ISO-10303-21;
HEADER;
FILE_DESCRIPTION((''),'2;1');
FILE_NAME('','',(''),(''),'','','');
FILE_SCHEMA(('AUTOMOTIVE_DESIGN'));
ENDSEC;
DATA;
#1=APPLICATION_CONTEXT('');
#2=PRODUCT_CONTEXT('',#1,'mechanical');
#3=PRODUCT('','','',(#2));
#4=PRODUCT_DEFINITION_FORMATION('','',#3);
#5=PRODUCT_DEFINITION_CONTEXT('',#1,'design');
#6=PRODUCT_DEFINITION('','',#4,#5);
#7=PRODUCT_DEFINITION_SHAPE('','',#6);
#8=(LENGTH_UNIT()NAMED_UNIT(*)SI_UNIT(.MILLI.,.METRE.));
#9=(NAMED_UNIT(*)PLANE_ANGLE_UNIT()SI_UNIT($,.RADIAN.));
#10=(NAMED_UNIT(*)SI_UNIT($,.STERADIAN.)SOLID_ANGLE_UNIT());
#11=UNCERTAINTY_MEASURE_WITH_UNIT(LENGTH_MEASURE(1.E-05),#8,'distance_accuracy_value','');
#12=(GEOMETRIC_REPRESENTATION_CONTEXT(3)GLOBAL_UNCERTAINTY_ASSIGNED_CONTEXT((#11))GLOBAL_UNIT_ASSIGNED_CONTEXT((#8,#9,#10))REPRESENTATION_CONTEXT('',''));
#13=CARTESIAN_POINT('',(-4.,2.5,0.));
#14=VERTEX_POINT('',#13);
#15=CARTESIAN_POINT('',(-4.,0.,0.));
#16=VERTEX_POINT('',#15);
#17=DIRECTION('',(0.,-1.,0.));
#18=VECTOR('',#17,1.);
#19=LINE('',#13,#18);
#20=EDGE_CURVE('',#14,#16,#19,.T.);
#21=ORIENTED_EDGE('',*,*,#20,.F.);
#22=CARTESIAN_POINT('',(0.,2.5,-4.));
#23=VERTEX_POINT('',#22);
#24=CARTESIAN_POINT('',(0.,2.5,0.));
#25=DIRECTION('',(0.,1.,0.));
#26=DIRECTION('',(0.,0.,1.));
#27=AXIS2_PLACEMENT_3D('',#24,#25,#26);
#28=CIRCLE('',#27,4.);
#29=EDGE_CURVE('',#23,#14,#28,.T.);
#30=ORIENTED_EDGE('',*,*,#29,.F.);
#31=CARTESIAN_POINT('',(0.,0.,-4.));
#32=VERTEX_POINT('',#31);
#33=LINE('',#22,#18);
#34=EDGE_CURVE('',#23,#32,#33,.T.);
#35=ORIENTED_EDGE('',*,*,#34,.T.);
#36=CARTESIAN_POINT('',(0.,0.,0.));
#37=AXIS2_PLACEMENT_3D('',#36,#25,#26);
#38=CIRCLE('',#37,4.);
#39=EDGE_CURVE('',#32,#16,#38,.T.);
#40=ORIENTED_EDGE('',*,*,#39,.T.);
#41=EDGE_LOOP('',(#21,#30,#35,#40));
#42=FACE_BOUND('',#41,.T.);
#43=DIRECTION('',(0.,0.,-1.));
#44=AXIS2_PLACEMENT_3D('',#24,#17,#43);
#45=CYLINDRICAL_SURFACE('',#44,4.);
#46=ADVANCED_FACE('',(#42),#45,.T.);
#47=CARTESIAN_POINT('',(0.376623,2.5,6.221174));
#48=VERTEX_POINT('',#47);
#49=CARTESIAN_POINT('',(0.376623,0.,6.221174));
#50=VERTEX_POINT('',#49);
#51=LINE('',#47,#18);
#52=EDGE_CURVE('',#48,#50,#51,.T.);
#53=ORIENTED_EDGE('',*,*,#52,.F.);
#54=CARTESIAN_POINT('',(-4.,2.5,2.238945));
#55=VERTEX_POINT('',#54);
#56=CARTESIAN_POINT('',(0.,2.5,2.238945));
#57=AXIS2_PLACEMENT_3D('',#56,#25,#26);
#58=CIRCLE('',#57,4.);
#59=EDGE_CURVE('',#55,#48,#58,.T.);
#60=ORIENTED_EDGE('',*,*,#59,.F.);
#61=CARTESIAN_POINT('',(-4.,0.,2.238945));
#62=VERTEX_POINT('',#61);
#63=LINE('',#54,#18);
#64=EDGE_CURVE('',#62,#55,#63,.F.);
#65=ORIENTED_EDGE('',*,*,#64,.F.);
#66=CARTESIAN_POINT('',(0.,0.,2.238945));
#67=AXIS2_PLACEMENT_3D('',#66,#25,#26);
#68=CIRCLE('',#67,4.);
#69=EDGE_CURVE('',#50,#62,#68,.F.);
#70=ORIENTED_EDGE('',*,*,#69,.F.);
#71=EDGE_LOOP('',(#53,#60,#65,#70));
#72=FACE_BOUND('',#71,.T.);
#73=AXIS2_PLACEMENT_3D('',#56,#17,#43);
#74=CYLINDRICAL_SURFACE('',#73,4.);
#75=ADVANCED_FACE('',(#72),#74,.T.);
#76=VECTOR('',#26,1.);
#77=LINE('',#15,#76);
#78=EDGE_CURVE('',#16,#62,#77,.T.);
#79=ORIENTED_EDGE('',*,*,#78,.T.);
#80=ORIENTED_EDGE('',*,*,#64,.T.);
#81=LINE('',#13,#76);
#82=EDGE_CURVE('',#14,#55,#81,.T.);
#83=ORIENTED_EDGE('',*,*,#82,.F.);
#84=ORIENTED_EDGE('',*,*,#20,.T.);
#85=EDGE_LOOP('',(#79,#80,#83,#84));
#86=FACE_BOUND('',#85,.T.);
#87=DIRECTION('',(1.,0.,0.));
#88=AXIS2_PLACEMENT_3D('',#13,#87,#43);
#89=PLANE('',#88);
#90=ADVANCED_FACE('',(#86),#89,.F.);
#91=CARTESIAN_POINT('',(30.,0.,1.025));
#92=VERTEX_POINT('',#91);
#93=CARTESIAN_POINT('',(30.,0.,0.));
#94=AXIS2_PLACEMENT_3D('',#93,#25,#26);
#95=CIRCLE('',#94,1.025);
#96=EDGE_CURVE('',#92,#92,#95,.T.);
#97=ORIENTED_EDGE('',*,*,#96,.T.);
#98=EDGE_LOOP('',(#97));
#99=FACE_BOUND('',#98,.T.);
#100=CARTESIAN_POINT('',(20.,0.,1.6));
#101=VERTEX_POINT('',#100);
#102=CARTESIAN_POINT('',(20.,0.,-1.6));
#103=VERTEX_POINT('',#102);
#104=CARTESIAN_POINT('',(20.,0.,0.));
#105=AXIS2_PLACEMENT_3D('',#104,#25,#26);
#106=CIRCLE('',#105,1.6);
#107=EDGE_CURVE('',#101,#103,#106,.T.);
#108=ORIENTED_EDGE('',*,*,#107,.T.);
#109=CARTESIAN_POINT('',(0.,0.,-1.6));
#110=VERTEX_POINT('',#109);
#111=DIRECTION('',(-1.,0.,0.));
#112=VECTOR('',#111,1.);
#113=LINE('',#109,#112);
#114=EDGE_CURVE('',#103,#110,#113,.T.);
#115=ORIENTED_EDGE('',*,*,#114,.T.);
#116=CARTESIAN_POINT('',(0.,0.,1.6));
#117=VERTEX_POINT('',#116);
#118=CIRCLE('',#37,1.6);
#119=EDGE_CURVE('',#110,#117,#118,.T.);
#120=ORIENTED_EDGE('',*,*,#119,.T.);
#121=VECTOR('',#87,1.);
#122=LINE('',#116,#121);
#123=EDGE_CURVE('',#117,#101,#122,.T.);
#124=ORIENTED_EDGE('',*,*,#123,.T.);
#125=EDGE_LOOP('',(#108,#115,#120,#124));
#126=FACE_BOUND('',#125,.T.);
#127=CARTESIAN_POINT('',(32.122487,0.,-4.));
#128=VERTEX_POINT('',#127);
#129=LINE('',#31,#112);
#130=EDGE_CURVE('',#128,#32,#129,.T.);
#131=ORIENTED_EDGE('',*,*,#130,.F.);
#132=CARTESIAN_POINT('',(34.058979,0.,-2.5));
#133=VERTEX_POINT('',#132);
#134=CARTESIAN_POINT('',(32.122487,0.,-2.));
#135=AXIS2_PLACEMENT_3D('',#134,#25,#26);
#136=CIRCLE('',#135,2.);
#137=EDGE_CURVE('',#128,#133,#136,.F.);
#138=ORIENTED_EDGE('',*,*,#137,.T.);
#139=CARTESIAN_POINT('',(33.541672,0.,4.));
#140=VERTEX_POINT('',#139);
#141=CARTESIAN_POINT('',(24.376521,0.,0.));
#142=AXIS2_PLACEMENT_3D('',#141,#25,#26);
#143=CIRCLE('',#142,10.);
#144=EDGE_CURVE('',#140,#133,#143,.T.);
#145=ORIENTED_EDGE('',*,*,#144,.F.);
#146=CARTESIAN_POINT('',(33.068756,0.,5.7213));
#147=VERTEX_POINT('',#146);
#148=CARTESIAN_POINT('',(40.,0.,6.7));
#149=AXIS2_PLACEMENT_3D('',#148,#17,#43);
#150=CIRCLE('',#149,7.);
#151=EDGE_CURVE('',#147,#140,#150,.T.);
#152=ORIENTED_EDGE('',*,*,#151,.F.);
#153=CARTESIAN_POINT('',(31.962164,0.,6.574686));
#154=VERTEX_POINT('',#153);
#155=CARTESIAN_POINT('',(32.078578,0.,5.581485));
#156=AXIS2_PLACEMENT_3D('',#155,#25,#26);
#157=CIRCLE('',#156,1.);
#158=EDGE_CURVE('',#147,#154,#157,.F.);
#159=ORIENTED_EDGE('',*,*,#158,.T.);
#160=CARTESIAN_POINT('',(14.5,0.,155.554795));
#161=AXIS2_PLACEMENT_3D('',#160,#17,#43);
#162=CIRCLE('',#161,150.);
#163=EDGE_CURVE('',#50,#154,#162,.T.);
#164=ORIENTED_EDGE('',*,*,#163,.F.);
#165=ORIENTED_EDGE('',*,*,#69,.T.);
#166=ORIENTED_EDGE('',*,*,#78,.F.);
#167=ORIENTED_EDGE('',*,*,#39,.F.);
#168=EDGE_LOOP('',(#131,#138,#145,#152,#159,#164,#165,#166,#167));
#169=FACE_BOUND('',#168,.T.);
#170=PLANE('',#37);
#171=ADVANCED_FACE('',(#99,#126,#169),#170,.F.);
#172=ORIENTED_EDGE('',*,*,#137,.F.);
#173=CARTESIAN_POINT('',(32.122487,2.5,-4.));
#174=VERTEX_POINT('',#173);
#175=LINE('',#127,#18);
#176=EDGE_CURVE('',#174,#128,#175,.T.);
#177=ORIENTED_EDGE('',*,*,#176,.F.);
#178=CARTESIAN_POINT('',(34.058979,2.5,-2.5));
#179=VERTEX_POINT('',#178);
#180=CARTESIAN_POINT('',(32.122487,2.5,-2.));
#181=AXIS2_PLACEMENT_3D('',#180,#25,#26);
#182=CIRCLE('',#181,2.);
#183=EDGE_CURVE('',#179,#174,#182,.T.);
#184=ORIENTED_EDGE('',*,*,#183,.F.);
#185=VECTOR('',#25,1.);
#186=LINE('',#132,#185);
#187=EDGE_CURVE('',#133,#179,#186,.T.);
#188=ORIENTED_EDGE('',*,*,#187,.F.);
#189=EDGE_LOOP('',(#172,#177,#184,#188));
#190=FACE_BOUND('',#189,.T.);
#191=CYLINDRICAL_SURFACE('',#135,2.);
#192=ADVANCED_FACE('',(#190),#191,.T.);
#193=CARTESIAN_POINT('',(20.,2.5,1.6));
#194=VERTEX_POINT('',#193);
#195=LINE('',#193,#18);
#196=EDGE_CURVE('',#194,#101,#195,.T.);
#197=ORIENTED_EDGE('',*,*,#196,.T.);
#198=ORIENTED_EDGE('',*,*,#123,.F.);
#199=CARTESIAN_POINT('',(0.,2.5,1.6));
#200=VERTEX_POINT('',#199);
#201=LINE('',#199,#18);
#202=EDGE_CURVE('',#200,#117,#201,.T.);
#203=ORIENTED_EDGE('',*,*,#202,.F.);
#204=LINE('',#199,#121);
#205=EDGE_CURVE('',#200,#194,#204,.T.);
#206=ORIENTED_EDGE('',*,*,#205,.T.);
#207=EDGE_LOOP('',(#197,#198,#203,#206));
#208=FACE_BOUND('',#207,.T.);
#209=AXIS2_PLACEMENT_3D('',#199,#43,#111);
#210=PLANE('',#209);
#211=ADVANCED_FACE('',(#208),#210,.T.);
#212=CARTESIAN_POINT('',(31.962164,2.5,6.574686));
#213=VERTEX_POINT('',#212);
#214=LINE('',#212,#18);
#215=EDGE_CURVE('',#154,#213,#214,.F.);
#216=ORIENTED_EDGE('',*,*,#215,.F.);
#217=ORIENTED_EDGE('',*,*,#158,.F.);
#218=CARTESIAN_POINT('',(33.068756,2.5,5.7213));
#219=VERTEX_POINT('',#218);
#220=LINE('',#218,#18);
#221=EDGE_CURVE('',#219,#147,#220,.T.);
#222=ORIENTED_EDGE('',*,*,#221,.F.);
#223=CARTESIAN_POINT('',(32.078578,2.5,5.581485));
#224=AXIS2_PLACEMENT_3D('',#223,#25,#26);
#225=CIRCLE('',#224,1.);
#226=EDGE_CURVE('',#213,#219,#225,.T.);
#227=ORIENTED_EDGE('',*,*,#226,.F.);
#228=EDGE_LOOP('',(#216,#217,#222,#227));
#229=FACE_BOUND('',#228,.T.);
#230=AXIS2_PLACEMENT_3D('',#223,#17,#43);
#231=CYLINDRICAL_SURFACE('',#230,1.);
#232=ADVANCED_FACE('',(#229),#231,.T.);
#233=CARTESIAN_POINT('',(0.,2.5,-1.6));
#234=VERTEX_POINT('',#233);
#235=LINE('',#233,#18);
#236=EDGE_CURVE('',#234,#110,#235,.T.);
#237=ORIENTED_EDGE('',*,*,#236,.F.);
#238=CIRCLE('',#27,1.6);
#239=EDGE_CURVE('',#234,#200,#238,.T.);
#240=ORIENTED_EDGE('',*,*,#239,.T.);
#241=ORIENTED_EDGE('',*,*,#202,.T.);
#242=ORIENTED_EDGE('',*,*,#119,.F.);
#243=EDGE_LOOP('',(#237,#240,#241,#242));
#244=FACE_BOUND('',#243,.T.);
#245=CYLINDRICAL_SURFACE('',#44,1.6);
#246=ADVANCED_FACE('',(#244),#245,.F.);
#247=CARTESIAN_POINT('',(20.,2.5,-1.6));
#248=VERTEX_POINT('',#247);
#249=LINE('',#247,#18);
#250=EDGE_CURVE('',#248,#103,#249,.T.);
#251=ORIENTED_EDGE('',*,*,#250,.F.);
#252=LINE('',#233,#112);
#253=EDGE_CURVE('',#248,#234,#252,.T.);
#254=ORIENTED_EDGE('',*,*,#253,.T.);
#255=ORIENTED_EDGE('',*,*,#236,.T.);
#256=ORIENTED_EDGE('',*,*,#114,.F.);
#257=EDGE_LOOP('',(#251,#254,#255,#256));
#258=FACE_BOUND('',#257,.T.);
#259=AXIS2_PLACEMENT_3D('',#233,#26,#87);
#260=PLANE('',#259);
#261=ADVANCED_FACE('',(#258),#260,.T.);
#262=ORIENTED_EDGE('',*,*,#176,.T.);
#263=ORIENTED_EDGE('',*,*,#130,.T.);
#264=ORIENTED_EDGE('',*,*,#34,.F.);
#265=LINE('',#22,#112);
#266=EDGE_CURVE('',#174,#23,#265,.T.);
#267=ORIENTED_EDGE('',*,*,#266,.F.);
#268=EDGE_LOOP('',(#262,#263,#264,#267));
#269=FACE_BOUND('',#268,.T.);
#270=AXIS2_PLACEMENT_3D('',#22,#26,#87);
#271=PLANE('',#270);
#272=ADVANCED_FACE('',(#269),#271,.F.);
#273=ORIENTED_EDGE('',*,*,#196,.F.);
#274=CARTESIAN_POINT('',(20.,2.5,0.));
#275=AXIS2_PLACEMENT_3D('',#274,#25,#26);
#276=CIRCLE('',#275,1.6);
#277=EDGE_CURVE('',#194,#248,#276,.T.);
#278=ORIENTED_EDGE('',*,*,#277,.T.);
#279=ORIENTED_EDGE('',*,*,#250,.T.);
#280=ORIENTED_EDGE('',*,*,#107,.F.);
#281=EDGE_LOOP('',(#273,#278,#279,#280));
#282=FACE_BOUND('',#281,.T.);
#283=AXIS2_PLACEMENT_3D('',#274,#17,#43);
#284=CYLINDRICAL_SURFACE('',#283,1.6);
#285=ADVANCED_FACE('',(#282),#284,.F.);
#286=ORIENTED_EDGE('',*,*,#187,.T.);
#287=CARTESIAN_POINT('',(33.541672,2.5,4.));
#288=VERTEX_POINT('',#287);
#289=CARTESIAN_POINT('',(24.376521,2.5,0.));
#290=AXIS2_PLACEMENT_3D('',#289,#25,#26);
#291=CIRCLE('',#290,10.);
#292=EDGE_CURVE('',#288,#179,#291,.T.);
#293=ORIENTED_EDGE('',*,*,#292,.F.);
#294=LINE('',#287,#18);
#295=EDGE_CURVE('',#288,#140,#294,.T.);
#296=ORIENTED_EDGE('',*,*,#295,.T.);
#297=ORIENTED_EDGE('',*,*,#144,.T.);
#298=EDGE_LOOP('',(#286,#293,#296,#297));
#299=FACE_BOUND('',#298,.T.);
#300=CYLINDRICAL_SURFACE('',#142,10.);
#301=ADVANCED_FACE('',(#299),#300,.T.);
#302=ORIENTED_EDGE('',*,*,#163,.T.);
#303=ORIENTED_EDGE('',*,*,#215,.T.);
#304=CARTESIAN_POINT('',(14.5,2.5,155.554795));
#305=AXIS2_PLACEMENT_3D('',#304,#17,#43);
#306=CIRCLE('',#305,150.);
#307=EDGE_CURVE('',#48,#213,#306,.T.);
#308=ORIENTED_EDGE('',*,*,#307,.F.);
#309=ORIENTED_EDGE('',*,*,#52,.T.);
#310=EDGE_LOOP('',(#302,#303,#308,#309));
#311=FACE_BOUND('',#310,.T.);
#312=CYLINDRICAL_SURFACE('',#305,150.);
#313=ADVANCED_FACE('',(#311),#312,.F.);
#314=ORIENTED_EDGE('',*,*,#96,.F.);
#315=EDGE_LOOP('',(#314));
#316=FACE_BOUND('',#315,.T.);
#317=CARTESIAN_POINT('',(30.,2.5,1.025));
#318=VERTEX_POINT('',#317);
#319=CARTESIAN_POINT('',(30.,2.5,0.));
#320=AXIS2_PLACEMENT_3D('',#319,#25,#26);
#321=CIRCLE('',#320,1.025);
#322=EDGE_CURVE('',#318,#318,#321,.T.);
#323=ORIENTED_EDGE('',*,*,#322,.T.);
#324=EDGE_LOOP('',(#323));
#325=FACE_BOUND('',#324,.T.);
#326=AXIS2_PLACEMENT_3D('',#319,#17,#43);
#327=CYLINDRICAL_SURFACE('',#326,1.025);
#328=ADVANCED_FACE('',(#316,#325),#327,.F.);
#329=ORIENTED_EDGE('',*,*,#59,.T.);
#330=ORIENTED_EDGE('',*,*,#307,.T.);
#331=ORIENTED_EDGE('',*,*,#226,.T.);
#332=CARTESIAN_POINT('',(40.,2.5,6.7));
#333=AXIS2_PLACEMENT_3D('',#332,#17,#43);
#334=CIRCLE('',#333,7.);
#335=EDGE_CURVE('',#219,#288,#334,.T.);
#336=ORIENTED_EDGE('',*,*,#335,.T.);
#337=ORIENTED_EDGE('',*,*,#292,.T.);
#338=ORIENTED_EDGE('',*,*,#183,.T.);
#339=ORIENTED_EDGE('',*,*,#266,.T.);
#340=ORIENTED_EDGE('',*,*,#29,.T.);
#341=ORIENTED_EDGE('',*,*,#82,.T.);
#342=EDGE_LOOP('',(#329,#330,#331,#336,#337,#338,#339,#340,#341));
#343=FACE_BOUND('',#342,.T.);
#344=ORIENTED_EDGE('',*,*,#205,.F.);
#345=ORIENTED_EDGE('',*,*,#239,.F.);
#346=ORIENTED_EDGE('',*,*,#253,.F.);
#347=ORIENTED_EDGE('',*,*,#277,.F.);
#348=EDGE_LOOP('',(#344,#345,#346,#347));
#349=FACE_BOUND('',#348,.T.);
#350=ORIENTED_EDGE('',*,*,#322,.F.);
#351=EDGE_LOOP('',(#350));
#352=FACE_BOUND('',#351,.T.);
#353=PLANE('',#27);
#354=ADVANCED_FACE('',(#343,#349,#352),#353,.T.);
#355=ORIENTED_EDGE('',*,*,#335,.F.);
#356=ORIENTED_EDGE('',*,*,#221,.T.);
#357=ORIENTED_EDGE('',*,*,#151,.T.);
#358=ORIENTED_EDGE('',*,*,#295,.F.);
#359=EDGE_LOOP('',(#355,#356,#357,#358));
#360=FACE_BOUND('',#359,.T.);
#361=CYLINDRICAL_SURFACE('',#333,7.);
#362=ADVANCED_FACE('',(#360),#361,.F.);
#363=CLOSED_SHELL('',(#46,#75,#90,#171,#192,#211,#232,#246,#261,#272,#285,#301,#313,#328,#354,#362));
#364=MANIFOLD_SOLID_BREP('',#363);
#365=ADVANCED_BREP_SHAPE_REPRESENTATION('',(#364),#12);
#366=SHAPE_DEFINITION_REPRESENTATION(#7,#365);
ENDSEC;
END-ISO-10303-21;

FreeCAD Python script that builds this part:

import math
import FreeCAD as App
import Part
import Sketcher
from FreeCAD import Vector
Q = App.Units.Quantity


def edges_at(feature, points):
    """Names of the edges that pass closest to the given points."""
    edges = feature.Shape.Edges
    near = lambda p: min(range(len(edges)), key=lambda i: edges[i].distToShape(Part.Vertex(*p))[0])
    return sorted({f"Edge{near(p) + 1}" for p in points})

doc = App.newDocument("Part")
body = doc.addObject("PartDesign::Body", "Body")

# Sketch on XZ plane
sketch1 = body.newObject("Sketcher::SketchObject", "Sketch")
sketch1.AttachmentSupport = (doc.getObject("XZ_Plane"), [""])
sketch1.MapMode = "FlatFace"
sketch1.addGeometry(Part.LineSegment(Vector(30, -4, 0), Vector(0, -4, 0)), False)
sketch1.addGeometry(Part.ArcOfCircle(Part.Circle(Vector(0, 0, 0), Vector(0, 0, 1), 4), math.radians(90), math.radians(270)), False)
sketch1.addGeometry(Part.LineSegment(Vector(0, 4, 0), Vector(30, 4, 0)), False)
sketch1.addGeometry(Part.ArcOfCircle(Part.Circle(Vector(30, 0, 0), Vector(0, 0, 1), 4), math.radians(-90), math.radians(90)), False)
sketch1.addGeometry(Part.Circle(Vector(30, 0, 0), Vector(0, 0, 1), 1), False)
sketch1.addGeometry(Part.LineSegment(Vector(0, -1.6, 0), Vector(20, -1.6, 0)), False)
sketch1.addGeometry(Part.ArcOfCircle(Part.Circle(Vector(20, 0, 0), Vector(0, 0, 1), 1.6), math.radians(-90), math.radians(90)), False)
sketch1.addGeometry(Part.LineSegment(Vector(20, 1.6, 0), Vector(0, 1.6, 0)), False)
sketch1.addGeometry(Part.ArcOfCircle(Part.Circle(Vector(0, 0, 0), Vector(0, 0, 1), 1.6), math.radians(90), math.radians(270)), False)
sketch1.addConstraint(Sketcher.Constraint("Tangent", 0, 2, 1, 2))
sketch1.addConstraint(Sketcher.Constraint("Tangent", 1, 1, 2, 1))
sketch1.addConstraint(Sketcher.Constraint("Tangent", 2, 2, 3, 2))
sketch1.addConstraint(Sketcher.Constraint("Tangent", 3, 1, 0, 1))
sketch1.addConstraint(Sketcher.Constraint("Tangent", 5, 2, 6, 1))
sketch1.addConstraint(Sketcher.Constraint("Tangent", 6, 2, 7, 1))
sketch1.addConstraint(Sketcher.Constraint("Tangent", 7, 2, 8, 1))
sketch1.addConstraint(Sketcher.Constraint("Tangent", 8, 2, 5, 1))
sketch1.addConstraint(Sketcher.Constraint("Horizontal", 0))
sketch1.addConstraint(Sketcher.Constraint("Horizontal", 2))
sketch1.addConstraint(Sketcher.Constraint("Horizontal", 5))
sketch1.addConstraint(Sketcher.Constraint("Horizontal", 7))
sketch1.addConstraint(Sketcher.Constraint("Coincident", 1, 3, -1, 1))
sketch1.addConstraint(Sketcher.Constraint("Coincident", 8, 3, -1, 1))
sketch1.addConstraint(Sketcher.Constraint("Coincident", 4, 3, 3, 3))
sketch1.addConstraint(Sketcher.Constraint("Radius", 1, Q("4 mm")))
sketch1.addConstraint(Sketcher.Constraint("Radius", 6, Q("1.6 mm")))
sketch1.addConstraint(Sketcher.Constraint("Diameter", 4, Q("2.05 mm")))
sketch1.addConstraint(Sketcher.Constraint("DistanceX", 0, 2, 0, 1, Q("30 mm")))
sketch1.addConstraint(Sketcher.Constraint("DistanceX", 5, 1, 5, 2, Q("20 mm")))
pad1 = body.newObject("PartDesign::Pad", "Pad")
pad1.Profile = sketch1
pad1.Length = 2.5
pad1.Reversed = True

# Sketch on XZ plane
sketch2 = body.newObject("Sketcher::SketchObject", "Sketch001")
sketch2.AttachmentSupport = (doc.getObject("XZ_Plane"), [""])
sketch2.MapMode = "FlatFace"
sketch2.addGeometry(Part.LineSegment(Vector(35, -4, 0), Vector(30, -4, 0)), False)
sketch2.addGeometry(Part.ArcOfCircle(Part.Circle(Vector(30, 0, 0), Vector(0, 0, 1), 4), math.radians(-90), math.radians(90)), False)
sketch2.addGeometry(Part.LineSegment(Vector(30, 4, 0), Vector(35, 4, 0)), False)
sketch2.addGeometry(Part.LineSegment(Vector(35, 4, 0), Vector(35, -4, 0)), False)
sketch2.addConstraint(Sketcher.Constraint("Tangent", 0, 2, 1, 1))
sketch2.addConstraint(Sketcher.Constraint("Tangent", 1, 2, 2, 1))
sketch2.addConstraint(Sketcher.Constraint("Coincident", 2, 2, 3, 1))
sketch2.addConstraint(Sketcher.Constraint("Coincident", 3, 2, 0, 1))
sketch2.addConstraint(Sketcher.Constraint("Horizontal", 0))
sketch2.addConstraint(Sketcher.Constraint("Horizontal", 2))
sketch2.addConstraint(Sketcher.Constraint("Vertical", 3))
sketch2.addConstraint(Sketcher.Constraint("PointOnObject", 1, 3, -1))
sketch2.addConstraint(Sketcher.Constraint("Radius", 1, Q("4 mm")))
sketch2.addConstraint(Sketcher.Constraint("DistanceX", 0, 2, 0, 1, Q("5 mm")))
sketch2.addConstraint(Sketcher.Constraint("DistanceX", -1, 1, 1, 3, Q("30 mm")))
pad2 = body.newObject("PartDesign::Pad", "Pad001")
pad2.Profile = sketch2
pad2.Length = 2.5
pad2.Reversed = True

# Sketch on XZ plane
sketch3 = body.newObject("Sketcher::SketchObject", "Sketch002")
sketch3.AttachmentSupport = (doc.getObject("XZ_Plane"), [""])
sketch3.MapMode = "FlatFace"
sketch3.addGeometry(Part.LineSegment(Vector(-4, 6.7, 0), Vector(-4, 0, 0)), False)
sketch3.addGeometry(Part.ArcOfCircle(Part.Circle(Vector(0, 0, 0), Vector(0, 0, 1), 4), math.radians(90), math.radians(180)), False)
sketch3.addGeometry(Part.LineSegment(Vector(0, 4, 0), Vector(33.5, 4, 0)), False)
sketch3.addGeometry(Part.ArcOfCircle(Part.Circle(Vector(40, 6.7, 0), Vector(0, 0, 1), 7), math.radians(180), math.radians(203)), False)
sketch3.addGeometry(Part.ArcOfCircle(Part.Circle(Vector(14.5, 155.6, 0), Vector(0, 0, 1), 150), math.radians(-97.08), math.radians(-82.92)), False)
sketch3.addConstraint(Sketcher.Constraint("Tangent", 0, 2, 1, 2))
sketch3.addConstraint(Sketcher.Constraint("Tangent", 1, 1, 2, 1))
sketch3.addConstraint(Sketcher.Constraint("Coincident", 2, 2, 3, 2))
sketch3.addConstraint(Sketcher.Constraint("Coincident", 3, 1, 4, 2))
sketch3.addConstraint(Sketcher.Constraint("Coincident", 4, 1, 0, 1))
sketch3.addConstraint(Sketcher.Constraint("Vertical", 0))
sketch3.addConstraint(Sketcher.Constraint("Horizontal", 2))
sketch3.addConstraint(Sketcher.Constraint("Coincident", 1, 3, -1, 1))
sketch3.addConstraint(Sketcher.Constraint("Horizontal", 3, 1, 4, 1))
sketch3.addConstraint(Sketcher.Constraint("Radius", 1, Q("4 mm")))
sketch3.addConstraint(Sketcher.Constraint("Radius", 3, Q("7 mm")))
sketch3.addConstraint(Sketcher.Constraint("Radius", 4, Q("150 mm")))
sketch3.addConstraint(Sketcher.Constraint("DistanceY", 0, 2, 0, 1, Q("6.7 mm")))
sketch3.addConstraint(Sketcher.Constraint("DistanceX", -1, 1, 3, 3, Q("40 mm")))
sketch3.addConstraint(Sketcher.Constraint("DistanceY", -1, 1, 3, 3, Q("6.7 mm")))
pad3 = body.newObject("PartDesign::Pad", "Pad002")
pad3.Profile = sketch3
pad3.Length = 2.5
pad3.Reversed = True
doc.recompute()

fillet = body.newObject("PartDesign::Fillet", "Fillet")
fillet.Base = (pad3, edges_at(pad3, [(-4, 1.25, 6.7)]))
fillet.Radius = 4

# Sketch on XZ plane
sketch4 = body.newObject("Sketcher::SketchObject", "Sketch003")
sketch4.AttachmentSupport = (doc.getObject("XZ_Plane"), [""])
sketch4.MapMode = "FlatFace"
sketch4.AttachmentOffset = App.Placement(Vector(0, 0, -2.5), App.Rotation())
sketch4.addGeometry(Part.ArcOfCircle(Part.Circle(Vector(24.4, 0, 0), Vector(0, 0, 1), 10), math.radians(0), math.radians(24)), False)
sketch4.addGeometry(Part.LineSegment(Vector(33.5, 4, 0), Vector(35, 4, 0)), False)
sketch4.addGeometry(Part.LineSegment(Vector(35, 4, 0), Vector(35, -4, 0)), False)
sketch4.addGeometry(Part.LineSegment(Vector(35, -4, 0), Vector(33.5, -4, 0)), False)
sketch4.addGeometry(Part.ArcOfCircle(Part.Circle(Vector(24.4, 0, 0), Vector(0, 0, 1), 10), math.radians(-24), math.radians(0)), False)
sketch4.addConstraint(Sketcher.Constraint("Coincident", 0, 2, 1, 1))
sketch4.addConstraint(Sketcher.Constraint("Coincident", 1, 2, 2, 1))
sketch4.addConstraint(Sketcher.Constraint("Coincident", 2, 2, 3, 1))
sketch4.addConstraint(Sketcher.Constraint("Coincident", 3, 2, 4, 1))
sketch4.addConstraint(Sketcher.Constraint("Tangent", 4, 2, 0, 1))
sketch4.addConstraint(Sketcher.Constraint("Horizontal", 1))
sketch4.addConstraint(Sketcher.Constraint("Vertical", 2))
sketch4.addConstraint(Sketcher.Constraint("Horizontal", 3))
sketch4.addConstraint(Sketcher.Constraint("Equal", 0, 4))
sketch4.addConstraint(Sketcher.Constraint("Symmetric", 0, 2, 3, 2, -1))
sketch4.addConstraint(Sketcher.Constraint("PointOnObject", 4, 2, -1))
sketch4.addConstraint(Sketcher.Constraint("Radius", 0, Q("10 mm")))
sketch4.addConstraint(Sketcher.Constraint("DistanceY", 2, 2, 2, 1, Q("8 mm")))
sketch4.addConstraint(Sketcher.Constraint("DistanceX", -1, 1, 1, 2, Q("35 mm")))
sketch4.addConstraint(Sketcher.Constraint("DistanceX", 1, 1, 1, 2, Q("1.458328 mm")))
pocket1 = body.newObject("PartDesign::Pocket", "Pocket")
pocket1.Profile = sketch4
pocket1.Length = 2.5
pocket1.Reversed = True
doc.recompute()

fillet2 = body.newObject("PartDesign::Fillet", "Fillet001")
fillet2.Base = (pocket1, edges_at(pocket1, [(33, 1.25, 6.7)]))
fillet2.Radius = 1
doc.recompute()

fillet3 = body.newObject("PartDesign::Fillet", "Fillet002")
fillet3.Base = (fillet2, edges_at(fillet2, [(33.542, 1.25, -4)]))
fillet3.Radius = 2

doc.recompute()
